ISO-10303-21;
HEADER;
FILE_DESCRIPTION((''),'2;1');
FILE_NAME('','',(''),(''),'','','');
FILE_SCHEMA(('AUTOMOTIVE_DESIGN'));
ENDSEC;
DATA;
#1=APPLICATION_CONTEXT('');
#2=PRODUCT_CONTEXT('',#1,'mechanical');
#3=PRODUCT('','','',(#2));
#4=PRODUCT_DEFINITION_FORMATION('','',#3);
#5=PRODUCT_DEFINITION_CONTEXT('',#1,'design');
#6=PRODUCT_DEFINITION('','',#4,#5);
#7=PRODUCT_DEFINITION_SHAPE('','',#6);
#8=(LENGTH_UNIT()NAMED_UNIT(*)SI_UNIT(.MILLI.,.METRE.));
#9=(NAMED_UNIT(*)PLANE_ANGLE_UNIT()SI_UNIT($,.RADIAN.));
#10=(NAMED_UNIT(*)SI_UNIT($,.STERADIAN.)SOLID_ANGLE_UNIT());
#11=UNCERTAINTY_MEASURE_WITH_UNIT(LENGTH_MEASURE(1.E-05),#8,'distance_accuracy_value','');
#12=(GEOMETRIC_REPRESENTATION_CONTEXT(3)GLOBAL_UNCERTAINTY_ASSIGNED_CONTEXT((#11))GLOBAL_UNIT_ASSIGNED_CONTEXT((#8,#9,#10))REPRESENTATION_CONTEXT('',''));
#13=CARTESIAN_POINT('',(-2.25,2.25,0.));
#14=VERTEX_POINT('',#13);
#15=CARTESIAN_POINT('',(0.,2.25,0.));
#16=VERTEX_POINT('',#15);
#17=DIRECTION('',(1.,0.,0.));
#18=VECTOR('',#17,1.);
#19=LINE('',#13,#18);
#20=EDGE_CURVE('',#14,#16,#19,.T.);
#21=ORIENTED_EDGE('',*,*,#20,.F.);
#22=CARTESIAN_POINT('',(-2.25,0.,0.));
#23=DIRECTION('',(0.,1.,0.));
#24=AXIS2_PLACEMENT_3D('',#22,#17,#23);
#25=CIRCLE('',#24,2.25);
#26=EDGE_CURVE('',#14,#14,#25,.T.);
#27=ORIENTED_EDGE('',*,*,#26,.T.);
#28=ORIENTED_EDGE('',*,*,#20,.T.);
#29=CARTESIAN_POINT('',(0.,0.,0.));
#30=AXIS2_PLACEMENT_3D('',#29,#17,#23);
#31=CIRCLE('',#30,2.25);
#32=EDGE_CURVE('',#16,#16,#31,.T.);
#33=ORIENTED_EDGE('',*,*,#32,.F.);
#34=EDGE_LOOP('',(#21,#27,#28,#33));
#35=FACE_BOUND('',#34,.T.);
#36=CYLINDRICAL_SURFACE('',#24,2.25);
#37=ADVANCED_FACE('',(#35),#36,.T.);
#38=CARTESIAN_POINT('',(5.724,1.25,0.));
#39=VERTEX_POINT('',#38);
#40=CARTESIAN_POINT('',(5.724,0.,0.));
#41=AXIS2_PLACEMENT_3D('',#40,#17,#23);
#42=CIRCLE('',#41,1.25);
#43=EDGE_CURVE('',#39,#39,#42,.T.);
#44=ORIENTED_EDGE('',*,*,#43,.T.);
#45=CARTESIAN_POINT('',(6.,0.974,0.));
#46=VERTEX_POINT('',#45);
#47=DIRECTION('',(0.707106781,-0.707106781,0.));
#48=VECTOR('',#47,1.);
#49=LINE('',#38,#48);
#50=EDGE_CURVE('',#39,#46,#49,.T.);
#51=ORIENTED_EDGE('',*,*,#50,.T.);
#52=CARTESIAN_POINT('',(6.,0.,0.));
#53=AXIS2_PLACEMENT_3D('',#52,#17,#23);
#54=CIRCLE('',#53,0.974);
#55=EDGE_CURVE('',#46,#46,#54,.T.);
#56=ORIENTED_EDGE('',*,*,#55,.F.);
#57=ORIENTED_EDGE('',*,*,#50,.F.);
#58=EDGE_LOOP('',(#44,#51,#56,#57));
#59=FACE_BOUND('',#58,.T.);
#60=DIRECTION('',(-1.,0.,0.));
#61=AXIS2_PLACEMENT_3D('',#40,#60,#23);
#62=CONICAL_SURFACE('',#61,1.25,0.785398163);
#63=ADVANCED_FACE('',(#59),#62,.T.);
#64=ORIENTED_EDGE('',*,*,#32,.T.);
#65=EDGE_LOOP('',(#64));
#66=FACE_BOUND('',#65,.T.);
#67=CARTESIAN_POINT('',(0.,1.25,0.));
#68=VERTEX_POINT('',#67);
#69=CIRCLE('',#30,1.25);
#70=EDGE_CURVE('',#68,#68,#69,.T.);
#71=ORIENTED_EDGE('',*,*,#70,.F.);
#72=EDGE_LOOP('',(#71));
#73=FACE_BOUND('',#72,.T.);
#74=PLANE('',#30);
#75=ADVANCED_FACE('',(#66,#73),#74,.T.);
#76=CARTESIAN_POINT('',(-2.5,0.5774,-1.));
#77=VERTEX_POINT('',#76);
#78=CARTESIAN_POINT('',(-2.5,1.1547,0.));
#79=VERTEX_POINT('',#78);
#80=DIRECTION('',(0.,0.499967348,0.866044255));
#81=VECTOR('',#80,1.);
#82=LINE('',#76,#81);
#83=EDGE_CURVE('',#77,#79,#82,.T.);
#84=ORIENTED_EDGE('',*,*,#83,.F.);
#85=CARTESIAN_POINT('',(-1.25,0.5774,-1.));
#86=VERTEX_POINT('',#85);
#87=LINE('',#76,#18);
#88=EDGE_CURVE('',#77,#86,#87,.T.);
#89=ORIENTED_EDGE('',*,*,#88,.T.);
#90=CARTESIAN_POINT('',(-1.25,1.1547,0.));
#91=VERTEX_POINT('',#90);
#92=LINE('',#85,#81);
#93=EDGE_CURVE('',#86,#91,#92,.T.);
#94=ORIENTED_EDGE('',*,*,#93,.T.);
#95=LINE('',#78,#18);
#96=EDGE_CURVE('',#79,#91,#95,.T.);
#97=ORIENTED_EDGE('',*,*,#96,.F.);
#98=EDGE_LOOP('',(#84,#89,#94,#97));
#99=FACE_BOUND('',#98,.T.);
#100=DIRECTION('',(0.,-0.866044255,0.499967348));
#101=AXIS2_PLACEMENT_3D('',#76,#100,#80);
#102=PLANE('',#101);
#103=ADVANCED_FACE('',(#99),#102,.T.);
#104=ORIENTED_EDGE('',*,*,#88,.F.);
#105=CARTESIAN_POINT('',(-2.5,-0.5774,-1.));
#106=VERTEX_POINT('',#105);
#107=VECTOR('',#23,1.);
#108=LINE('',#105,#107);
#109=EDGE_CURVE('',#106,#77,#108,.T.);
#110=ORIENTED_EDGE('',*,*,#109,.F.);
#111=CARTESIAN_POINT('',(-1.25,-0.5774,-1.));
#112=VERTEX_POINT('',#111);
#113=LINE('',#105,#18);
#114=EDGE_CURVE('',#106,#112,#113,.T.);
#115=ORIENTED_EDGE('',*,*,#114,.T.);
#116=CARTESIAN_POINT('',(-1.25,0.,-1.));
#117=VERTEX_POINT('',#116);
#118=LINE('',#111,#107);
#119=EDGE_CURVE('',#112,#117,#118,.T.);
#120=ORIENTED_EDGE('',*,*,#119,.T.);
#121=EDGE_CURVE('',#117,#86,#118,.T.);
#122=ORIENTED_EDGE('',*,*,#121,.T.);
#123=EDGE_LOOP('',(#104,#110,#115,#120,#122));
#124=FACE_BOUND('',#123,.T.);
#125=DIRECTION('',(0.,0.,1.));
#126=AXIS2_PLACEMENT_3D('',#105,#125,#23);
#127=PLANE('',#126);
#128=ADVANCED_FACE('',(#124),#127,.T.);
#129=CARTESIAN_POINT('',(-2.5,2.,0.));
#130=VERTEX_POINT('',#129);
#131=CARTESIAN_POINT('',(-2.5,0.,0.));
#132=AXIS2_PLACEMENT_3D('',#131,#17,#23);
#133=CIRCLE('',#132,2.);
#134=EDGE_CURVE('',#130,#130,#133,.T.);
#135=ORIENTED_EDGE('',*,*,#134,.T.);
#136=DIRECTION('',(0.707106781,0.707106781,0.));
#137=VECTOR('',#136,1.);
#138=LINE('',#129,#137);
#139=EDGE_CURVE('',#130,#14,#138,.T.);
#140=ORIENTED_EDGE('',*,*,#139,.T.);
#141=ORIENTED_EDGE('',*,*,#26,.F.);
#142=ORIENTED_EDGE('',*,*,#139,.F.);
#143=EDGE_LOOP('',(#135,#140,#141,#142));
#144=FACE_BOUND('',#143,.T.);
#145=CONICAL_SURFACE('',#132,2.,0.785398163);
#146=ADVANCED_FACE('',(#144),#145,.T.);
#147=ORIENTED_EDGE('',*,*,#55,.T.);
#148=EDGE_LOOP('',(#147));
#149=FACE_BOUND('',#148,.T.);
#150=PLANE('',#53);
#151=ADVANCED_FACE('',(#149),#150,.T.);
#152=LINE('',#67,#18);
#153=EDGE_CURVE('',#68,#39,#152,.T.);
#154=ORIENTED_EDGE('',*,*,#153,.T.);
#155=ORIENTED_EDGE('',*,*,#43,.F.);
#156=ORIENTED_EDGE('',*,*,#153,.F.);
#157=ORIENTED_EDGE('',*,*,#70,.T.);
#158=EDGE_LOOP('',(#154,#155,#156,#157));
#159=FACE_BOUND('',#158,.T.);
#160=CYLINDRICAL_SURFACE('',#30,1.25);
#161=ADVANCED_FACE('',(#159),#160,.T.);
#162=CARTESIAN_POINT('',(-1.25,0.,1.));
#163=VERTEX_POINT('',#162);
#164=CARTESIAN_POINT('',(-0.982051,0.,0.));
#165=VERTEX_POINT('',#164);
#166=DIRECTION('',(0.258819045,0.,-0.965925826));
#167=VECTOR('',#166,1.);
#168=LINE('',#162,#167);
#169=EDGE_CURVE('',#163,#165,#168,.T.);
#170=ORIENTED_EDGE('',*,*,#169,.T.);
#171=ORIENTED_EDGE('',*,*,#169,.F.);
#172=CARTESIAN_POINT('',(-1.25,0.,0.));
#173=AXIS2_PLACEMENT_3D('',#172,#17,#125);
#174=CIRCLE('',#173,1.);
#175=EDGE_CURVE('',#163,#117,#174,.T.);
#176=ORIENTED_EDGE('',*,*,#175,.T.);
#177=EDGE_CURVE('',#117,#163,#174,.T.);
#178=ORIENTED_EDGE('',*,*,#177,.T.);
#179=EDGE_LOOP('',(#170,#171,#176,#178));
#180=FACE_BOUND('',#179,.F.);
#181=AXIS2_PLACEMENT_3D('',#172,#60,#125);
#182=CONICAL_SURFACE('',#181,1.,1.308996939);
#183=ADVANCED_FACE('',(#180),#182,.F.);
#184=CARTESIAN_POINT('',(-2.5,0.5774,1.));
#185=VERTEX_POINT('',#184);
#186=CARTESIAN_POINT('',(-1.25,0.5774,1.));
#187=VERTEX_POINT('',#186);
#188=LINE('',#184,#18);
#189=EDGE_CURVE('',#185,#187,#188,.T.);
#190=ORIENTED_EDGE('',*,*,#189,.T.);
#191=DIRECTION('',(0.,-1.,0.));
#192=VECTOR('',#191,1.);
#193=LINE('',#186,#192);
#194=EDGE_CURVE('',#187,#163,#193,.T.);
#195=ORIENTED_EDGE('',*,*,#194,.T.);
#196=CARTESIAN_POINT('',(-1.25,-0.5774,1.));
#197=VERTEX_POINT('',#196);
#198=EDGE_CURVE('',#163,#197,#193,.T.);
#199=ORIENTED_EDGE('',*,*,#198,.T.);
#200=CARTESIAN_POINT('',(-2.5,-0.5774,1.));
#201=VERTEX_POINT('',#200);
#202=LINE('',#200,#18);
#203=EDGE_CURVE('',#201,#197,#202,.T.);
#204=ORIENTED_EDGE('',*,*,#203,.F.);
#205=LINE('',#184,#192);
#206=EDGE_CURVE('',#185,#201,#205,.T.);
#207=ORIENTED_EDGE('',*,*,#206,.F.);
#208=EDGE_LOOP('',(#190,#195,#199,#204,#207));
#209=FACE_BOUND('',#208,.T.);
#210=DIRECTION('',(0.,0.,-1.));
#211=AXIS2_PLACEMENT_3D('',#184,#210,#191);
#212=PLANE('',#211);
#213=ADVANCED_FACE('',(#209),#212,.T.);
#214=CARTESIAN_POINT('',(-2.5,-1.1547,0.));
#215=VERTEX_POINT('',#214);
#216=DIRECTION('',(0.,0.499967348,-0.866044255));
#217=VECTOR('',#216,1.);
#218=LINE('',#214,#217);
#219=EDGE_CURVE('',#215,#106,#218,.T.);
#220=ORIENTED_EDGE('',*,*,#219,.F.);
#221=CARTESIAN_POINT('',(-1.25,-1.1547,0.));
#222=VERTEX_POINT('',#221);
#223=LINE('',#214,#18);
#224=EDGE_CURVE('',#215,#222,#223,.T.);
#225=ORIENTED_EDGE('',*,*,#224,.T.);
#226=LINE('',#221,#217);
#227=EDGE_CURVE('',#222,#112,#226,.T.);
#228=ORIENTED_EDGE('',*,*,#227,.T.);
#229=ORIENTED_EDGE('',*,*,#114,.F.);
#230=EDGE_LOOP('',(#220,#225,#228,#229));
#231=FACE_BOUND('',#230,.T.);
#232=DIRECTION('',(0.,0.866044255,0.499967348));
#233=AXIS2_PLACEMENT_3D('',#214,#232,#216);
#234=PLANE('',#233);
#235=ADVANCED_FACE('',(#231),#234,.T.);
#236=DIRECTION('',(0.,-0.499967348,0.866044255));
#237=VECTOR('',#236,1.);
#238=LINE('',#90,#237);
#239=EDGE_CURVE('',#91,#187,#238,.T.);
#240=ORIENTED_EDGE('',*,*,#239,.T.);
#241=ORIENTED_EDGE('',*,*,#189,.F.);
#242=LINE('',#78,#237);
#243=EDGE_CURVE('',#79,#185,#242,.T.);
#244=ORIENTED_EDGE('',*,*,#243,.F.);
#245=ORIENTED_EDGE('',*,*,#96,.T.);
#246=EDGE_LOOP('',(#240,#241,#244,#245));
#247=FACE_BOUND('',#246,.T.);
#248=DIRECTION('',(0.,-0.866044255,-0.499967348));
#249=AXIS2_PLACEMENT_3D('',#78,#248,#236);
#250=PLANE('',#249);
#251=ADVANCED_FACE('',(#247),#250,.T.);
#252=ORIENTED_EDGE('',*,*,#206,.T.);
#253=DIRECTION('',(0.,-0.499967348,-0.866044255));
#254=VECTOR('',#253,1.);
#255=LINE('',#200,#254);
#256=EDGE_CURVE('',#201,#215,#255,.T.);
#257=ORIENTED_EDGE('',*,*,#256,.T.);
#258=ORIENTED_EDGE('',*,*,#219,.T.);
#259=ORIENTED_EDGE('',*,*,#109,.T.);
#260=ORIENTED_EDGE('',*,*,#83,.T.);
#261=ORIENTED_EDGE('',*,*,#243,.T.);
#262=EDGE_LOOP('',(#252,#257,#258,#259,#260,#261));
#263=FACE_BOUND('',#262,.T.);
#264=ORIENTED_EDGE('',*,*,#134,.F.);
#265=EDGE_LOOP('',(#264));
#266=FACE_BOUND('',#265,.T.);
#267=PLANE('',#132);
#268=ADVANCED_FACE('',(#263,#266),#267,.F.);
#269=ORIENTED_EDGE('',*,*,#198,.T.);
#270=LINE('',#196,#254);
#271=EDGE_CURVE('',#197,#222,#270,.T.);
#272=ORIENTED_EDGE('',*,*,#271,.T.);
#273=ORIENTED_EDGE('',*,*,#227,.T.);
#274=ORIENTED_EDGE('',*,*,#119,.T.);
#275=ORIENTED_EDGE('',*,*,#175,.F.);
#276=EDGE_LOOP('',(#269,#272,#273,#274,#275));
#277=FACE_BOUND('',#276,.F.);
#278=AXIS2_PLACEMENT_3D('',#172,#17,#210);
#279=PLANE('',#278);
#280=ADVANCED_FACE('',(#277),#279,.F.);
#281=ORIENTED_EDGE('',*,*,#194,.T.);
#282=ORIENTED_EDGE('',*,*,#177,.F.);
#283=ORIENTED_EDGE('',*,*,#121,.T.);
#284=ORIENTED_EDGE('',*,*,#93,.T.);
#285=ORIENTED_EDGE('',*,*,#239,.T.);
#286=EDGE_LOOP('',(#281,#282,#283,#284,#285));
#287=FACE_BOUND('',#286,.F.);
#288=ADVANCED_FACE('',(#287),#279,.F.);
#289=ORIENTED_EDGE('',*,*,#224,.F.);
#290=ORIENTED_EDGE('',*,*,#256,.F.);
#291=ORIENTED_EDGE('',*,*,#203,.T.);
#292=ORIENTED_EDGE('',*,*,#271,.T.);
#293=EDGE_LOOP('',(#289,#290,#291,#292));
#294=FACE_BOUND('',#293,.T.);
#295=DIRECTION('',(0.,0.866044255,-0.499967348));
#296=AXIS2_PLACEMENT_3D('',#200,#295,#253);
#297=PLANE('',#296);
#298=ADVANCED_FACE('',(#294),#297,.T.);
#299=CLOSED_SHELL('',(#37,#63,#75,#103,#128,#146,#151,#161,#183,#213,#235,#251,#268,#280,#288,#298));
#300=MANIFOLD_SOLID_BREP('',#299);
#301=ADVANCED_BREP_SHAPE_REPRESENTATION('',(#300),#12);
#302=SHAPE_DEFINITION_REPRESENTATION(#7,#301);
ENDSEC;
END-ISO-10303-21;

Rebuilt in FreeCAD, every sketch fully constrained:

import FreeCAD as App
import Part
import Sketcher
Q = App.Units.Quantity


def add_polygon(sketch, points):
    """Adds a closed chain of lines whose ends are joined by coincident constraints."""
    first, n = sketch.GeometryCount, len(points)
    for a, b in zip(points, points[1:] + points[:1]):
        sketch.addGeometry(Part.LineSegment(App.Vector(*a, 0), App.Vector(*b, 0)), False)
    for i in range(n):
        sketch.addConstraint(Sketcher.Constraint("Coincident", first + i, 2, first + (i + 1) % n, 1))

doc = App.newDocument("Part")
body = doc.addObject("PartDesign::Body", "Body")

# Sketch on XY plane
sketch1 = body.newObject("Sketcher::SketchObject", "Sketch")
sketch1.AttachmentSupport = (doc.getObject("XY_Plane"), [""])
sketch1.MapMode = "FlatFace"
add_polygon(sketch1, [(-2.5, 0), (6, 0), (6, 0.974), (5.724, 1.25), (0, 1.25), (0, 2.25), (-2.25, 2.25), (-2.5, 2)])  # lines 0-7
sketch1.addConstraint(Sketcher.Constraint("Horizontal", 0))
sketch1.addConstraint(Sketcher.Constraint("Vertical", 1))
sketch1.addConstraint(Sketcher.Constraint("Horizontal", 3))
sketch1.addConstraint(Sketcher.Constraint("Vertical", 4))
sketch1.addConstraint(Sketcher.Constraint("Horizontal", 5))
sketch1.addConstraint(Sketcher.Constraint("Vertical", 7))
sketch1.addConstraint(Sketcher.Constraint("PointOnObject", 0, 2, -1))
sketch1.addConstraint(Sketcher.Constraint("PointOnObject", 3, 2, -2))
sketch1.addConstraint(Sketcher.Constraint("Perpendicular", 2, 6))
sketch1.addConstraint(Sketcher.Constraint("DistanceY", 4, 1, 4, 2, Q("1 mm")))
sketch1.addConstraint(Sketcher.Constraint("DistanceY", 7, 2, 7, 1, Q("2 mm")))
sketch1.addConstraint(Sketcher.Constraint("Angle", 2, Q("135 deg")))
sketch1.addConstraint(Sketcher.Constraint("DistanceX", 0, 1, 0, 2, Q("8.5 mm")))
sketch1.addConstraint(Sketcher.Constraint("DistanceX", -1, 1, 0, 2, Q("6 mm")))
sketch1.addConstraint(Sketcher.Constraint("DistanceX", 5, 2, 5, 1, Q("2.25 mm")))
sketch1.addConstraint(Sketcher.Constraint("DistanceX", 3, 2, 3, 1, Q("5.724 mm")))
revolution = body.newObject("PartDesign::Revolution", "Revolution")
revolution.Profile = sketch1
revolution.ReferenceAxis = (sketch1, ["H_Axis"])
revolution.Angle = 360

# Sketch on YZ plane
sketch2 = body.newObject("Sketcher::SketchObject", "Sketch001")
sketch2.AttachmentSupport = (doc.getObject("YZ_Plane"), [""])
sketch2.MapMode = "FlatFace"
sketch2.AttachmentOffset = App.Placement(App.Vector(0, 0, -2.5), App.Rotation())
sketch2.addGeometry(Part.Circle(App.Vector(0, 0, 0), App.Vector(0, 0, 1), 1), False)
sketch2.addConstraint(Sketcher.Constraint("Coincident", 0, 3, -1, 1))
sketch2.addConstraint(Sketcher.Constraint("Diameter", 0, Q("2 mm")))
doc.recompute()
hole = body.newObject("PartDesign::Hole", "Hole")
hole.Profile = sketch2
hole.ThreadType = "None"
hole.Diameter = 2
hole.DepthType = "Dimension"
hole.Depth = 1.25
hole.DrillPoint = "Angled"
hole.DrillPointAngle = 150
hole.Reversed = True

# Sketch on YZ plane
sketch3 = body.newObject("Sketcher::SketchObject", "Sketch002")
sketch3.AttachmentSupport = (doc.getObject("YZ_Plane"), [""])
sketch3.MapMode = "FlatFace"
sketch3.AttachmentOffset = App.Placement(App.Vector(0, 0, -2.5), App.Rotation())
add_polygon(sketch3, [(0.5774, 1), (-0.5774, 1), (-1.1547, 0), (-0.5774, -1), (0.5774, -1), (1.1547, 0)])  # lines 0-5
sketch3.addConstraint(Sketcher.Constraint("Horizontal", 0))
sketch3.addConstraint(Sketcher.Constraint("Horizontal", 3))
sketch3.addConstraint(Sketcher.Constraint("Symmetric", 0, 2, 3, 2, -1, 1))
sketch3.addConstraint(Sketcher.Constraint("Symmetric", 1, 2, 4, 2, -1, 1))
sketch3.addConstraint(Sketcher.Constraint("PointOnObject", 1, 2, -1))
sketch3.addConstraint(Sketcher.Constraint("Parallel", 2, 5))
sketch3.addConstraint(Sketcher.Constraint("Vertical", 0, 2, 2, 2))
sketch3.addConstraint(Sketcher.Constraint("DistanceY", -1, 1, 0, 2, Q("1 mm")))
sketch3.addConstraint(Sketcher.Constraint("DistanceX", 0, 2, 0, 1, Q("1.1548 mm")))
sketch3.addConstraint(Sketcher.Constraint("DistanceX", 1, 2, 3, 2, Q("1.732 mm")))
pocket1 = body.newObject("PartDesign::Pocket", "Pocket")
pocket1.Profile = sketch3
pocket1.Length = 1.25
pocket1.Reversed = True

doc.recompute()
